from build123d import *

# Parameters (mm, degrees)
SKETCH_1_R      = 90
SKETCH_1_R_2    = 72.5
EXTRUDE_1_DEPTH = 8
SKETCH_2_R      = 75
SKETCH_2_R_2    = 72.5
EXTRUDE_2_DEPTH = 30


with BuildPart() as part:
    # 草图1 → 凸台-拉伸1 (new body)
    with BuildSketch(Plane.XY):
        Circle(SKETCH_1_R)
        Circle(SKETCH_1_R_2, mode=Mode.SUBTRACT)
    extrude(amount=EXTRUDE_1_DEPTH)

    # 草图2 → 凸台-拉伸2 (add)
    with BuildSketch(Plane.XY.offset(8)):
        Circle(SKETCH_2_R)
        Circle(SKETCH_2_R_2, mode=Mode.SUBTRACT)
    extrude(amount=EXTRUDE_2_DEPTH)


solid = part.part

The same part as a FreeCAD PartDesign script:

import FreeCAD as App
import Part
import Sketcher
from FreeCAD import Vector

doc = App.newDocument("Part")
body = doc.addObject("PartDesign::Body", "Body")

sketch1 = body.newObject("Sketcher::SketchObject", "Sketch")
sketch1.AttachmentSupport = (doc.getObject("XY_Plane"), [""])
sketch1.MapMode = "FlatFace"
sketch1.addGeometry([
    Part.Circle(Vector(0, 0, 0), Vector(0, 0, 1), 90),
    Part.Circle(Vector(0, 0, 0), Vector(0, 0, 1), 72.5),
], False)
sketch1.addConstraint([
    Sketcher.Constraint("Coincident", 0, 3, -1, 1),
    Sketcher.Constraint("Coincident", 1, 3, -1, 1),
    Sketcher.Constraint("Diameter", 0, 180.0),
    Sketcher.Constraint("Diameter", 1, 145.0),
])
pad1 = body.newObject("PartDesign::Pad", "Pad")
pad1.Profile = sketch1
pad1.Length = 8

sketch2 = body.newObject("Sketcher::SketchObject", "Sketch001")
sketch2.AttachmentSupport = (doc.getObject("XY_Plane"), [""])
sketch2.MapMode = "FlatFace"
sketch2.AttachmentOffset = App.Placement(Vector(0, 0, 8), App.Rotation())
sketch2.addGeometry([
    Part.Circle(Vector(0, 0, 0), Vector(0, 0, 1), 75),
    Part.Circle(Vector(0, 0, 0), Vector(0, 0, 1), 72.5),
], False)
sketch2.addConstraint([
    Sketcher.Constraint("Coincident", 0, 3, -1, 1),
    Sketcher.Constraint("Coincident", 1, 3, -1, 1),
    Sketcher.Constraint("Diameter", 0, 150.0),
    Sketcher.Constraint("Diameter", 1, 145.0),
])
pad2 = body.newObject("PartDesign::Pad", "Pad001")
pad2.Profile = sketch2
pad2.Length = 30

doc.recompute()
